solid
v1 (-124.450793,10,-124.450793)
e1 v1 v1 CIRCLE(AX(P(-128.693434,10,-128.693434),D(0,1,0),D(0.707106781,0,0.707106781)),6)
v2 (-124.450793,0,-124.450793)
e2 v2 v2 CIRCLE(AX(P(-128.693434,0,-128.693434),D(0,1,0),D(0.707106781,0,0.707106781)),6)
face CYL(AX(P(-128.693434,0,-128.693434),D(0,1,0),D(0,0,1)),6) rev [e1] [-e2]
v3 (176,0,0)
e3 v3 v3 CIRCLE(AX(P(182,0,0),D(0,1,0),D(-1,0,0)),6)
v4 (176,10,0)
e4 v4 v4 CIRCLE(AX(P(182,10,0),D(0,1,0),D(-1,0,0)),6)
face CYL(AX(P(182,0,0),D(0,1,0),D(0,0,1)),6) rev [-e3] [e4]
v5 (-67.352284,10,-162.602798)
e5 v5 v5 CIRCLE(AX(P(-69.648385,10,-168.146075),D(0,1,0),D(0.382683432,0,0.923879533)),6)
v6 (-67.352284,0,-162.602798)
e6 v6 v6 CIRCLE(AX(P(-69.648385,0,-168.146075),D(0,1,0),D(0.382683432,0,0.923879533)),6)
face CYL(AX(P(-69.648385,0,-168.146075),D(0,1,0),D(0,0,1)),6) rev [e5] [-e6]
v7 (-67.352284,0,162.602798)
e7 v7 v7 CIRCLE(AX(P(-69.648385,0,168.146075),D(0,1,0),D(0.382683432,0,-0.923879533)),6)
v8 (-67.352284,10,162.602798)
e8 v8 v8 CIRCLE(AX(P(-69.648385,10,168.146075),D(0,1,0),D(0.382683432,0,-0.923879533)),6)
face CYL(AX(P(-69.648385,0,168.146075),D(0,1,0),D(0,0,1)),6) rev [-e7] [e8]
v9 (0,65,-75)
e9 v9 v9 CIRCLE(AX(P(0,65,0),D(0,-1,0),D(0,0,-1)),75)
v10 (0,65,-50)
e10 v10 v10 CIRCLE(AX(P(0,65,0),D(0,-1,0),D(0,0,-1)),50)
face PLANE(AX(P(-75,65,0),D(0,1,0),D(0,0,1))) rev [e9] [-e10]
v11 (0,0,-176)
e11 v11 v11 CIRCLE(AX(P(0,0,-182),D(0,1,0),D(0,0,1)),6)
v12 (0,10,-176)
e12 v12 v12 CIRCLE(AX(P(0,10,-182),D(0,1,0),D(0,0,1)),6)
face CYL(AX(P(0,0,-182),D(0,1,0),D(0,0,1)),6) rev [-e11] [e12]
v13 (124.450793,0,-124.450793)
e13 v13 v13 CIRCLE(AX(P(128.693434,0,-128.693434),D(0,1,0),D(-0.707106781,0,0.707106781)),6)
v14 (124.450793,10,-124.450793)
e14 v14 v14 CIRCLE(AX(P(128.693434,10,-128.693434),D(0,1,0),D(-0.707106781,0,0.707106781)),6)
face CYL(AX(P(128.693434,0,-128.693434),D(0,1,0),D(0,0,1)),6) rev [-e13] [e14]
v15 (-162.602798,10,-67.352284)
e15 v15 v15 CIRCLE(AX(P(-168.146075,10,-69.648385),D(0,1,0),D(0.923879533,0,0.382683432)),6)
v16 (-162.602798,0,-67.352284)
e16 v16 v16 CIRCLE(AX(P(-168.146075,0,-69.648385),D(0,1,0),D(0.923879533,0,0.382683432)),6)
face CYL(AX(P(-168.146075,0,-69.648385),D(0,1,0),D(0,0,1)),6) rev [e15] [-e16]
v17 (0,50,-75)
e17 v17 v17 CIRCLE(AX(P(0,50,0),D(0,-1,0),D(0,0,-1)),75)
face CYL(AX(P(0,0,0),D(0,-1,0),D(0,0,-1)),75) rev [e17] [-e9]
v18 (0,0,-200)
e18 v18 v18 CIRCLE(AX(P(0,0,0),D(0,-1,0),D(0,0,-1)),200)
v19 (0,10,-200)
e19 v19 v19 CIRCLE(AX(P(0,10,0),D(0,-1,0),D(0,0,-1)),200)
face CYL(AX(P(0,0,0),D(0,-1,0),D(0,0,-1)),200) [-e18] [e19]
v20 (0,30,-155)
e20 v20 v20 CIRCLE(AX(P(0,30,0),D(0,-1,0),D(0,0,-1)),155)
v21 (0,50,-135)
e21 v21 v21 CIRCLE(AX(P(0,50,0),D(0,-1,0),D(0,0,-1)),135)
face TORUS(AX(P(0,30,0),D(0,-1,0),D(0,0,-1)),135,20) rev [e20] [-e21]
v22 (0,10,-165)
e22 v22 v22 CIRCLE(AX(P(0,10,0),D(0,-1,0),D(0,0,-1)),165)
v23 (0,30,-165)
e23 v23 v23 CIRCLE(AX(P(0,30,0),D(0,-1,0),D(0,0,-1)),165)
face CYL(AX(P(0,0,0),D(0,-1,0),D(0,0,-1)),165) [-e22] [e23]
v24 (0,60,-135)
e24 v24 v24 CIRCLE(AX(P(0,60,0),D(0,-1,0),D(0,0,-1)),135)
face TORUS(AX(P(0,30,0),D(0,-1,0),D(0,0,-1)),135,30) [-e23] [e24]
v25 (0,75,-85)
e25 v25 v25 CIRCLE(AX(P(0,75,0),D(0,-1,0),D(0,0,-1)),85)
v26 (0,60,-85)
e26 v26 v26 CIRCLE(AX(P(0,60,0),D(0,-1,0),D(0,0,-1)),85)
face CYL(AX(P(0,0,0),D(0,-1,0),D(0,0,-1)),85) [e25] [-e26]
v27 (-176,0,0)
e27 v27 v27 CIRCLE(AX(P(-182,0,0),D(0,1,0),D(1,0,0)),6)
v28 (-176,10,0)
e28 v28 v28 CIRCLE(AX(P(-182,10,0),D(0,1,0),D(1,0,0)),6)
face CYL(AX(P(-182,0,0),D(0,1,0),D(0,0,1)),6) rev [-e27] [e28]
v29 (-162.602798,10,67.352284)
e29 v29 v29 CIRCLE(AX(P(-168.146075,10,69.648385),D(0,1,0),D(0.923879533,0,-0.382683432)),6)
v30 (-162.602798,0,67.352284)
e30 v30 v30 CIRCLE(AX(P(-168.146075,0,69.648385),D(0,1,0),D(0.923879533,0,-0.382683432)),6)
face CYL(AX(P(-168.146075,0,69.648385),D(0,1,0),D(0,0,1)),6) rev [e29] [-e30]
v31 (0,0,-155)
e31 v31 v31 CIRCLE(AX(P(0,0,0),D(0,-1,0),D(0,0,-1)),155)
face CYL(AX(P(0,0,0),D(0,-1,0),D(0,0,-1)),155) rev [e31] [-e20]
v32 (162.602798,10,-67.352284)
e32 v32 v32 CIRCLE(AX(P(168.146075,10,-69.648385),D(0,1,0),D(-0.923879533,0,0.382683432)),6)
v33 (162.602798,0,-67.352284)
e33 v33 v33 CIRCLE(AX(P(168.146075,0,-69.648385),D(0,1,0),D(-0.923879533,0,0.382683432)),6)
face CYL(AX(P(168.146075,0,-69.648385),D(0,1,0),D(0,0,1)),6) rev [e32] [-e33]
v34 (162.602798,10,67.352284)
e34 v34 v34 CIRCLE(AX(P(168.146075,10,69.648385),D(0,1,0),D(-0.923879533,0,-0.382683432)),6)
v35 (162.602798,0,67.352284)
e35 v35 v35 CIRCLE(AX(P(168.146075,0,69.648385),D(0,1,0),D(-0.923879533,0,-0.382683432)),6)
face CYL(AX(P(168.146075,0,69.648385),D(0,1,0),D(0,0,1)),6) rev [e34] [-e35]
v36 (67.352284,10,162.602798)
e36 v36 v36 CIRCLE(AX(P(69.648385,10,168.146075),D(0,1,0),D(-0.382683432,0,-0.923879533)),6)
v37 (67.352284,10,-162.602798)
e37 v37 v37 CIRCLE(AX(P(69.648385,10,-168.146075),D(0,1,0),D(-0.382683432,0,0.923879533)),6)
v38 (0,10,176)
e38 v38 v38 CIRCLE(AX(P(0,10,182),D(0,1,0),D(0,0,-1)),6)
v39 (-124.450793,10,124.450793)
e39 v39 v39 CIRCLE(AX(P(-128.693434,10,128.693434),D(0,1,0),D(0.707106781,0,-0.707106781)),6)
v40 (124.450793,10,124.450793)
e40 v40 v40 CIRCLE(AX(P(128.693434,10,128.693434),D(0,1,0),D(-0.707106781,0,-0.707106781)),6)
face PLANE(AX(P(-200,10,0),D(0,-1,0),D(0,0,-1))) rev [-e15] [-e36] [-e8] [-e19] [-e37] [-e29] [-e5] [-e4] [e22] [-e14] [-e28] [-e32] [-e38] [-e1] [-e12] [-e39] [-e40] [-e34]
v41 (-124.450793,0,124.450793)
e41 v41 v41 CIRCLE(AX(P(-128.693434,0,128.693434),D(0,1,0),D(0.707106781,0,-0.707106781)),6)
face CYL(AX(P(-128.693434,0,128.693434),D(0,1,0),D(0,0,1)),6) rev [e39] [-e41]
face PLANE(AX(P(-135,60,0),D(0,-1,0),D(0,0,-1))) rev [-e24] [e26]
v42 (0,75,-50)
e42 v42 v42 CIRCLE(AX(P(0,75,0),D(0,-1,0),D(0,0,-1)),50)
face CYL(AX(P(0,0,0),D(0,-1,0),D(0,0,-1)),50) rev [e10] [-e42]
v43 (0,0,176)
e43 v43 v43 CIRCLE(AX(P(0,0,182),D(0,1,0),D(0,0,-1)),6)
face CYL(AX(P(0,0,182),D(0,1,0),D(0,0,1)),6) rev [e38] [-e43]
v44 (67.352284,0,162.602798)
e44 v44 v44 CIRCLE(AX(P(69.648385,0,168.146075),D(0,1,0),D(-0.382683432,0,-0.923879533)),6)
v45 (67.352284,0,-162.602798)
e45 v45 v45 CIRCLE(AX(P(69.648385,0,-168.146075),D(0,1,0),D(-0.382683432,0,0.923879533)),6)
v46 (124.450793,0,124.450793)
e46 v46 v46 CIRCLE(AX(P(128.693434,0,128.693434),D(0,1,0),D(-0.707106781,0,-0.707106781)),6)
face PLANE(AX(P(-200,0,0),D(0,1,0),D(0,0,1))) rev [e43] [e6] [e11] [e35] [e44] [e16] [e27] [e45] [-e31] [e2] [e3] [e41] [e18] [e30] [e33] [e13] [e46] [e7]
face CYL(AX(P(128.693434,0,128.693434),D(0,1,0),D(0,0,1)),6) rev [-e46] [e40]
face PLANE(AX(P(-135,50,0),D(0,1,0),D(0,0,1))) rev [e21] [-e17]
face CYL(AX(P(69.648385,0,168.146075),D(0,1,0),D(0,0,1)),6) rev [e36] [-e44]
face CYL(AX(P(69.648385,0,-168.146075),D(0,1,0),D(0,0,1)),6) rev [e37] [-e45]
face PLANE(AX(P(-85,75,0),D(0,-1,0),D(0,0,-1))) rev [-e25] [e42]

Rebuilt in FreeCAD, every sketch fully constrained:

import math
import FreeCAD as App
import Part
import Sketcher
from FreeCAD import Vector
Q = App.Units.Quantity

doc = App.newDocument("Part")
body = doc.addObject("PartDesign::Body", "Body")

sketch1 = doc.addObject("Sketcher::SketchObject", "Sketch")
body.addObject(sketch1)
sketch1.AttachmentSupport = (doc.XY_Plane, [""])
sketch1.MapMode = "FlatFace"
sketch1.addGeometry([
    Part.LineSegment(Vector(-165, 10, 0), Vector(-200, 10, 0)),
    Part.LineSegment(Vector(-200, 10, 0), Vector(-200, 0, 0)),
    Part.LineSegment(Vector(-200, 0, 0), Vector(-155, 0, 0)),
    Part.LineSegment(Vector(-155, 0, 0), Vector(-155, 30, 0)),
    Part.ArcOfCircle(Part.Circle(Vector(-135, 30, 0), Vector(0, 0, 1), 20), math.radians(90), math.radians(180)),
    Part.LineSegment(Vector(-135, 50, 0), Vector(-75, 50, 0)),
    Part.LineSegment(Vector(-75, 50, 0), Vector(-75, 65, 0)),
    Part.LineSegment(Vector(-75, 65, 0), Vector(-50, 65, 0)),
    Part.LineSegment(Vector(-50, 65, 0), Vector(-50, 75, 0)),
    Part.LineSegment(Vector(-50, 75, 0), Vector(-85, 75, 0)),
    Part.LineSegment(Vector(-85, 75, 0), Vector(-85, 60, 0)),
    Part.LineSegment(Vector(-85, 60, 0), Vector(-135, 60, 0)),
    Part.ArcOfCircle(Part.Circle(Vector(-135, 30, 0), Vector(0, 0, 1), 30), math.radians(90), math.radians(180)),
    Part.LineSegment(Vector(-165, 30, 0), Vector(-165, 10, 0)),
], False)
sketch1.addConstraint([
    Sketcher.Constraint("Coincident", 0, 2, 1, 1),
    Sketcher.Constraint("Coincident", 1, 2, 2, 1),
    Sketcher.Constraint("Coincident", 2, 2, 3, 1),
    Sketcher.Constraint("Tangent", 3, 2, 4, 2),
    Sketcher.Constraint("Tangent", 4, 1, 5, 1),
    Sketcher.Constraint("Coincident", 5, 2, 6, 1),
    Sketcher.Constraint("Coincident", 6, 2, 7, 1),
    Sketcher.Constraint("Coincident", 7, 2, 8, 1),
    Sketcher.Constraint("Coincident", 8, 2, 9, 1),
    Sketcher.Constraint("Coincident", 9, 2, 10, 1),
    Sketcher.Constraint("Coincident", 10, 2, 11, 1),
    Sketcher.Constraint("Tangent", 11, 2, 12, 1),
    Sketcher.Constraint("Tangent", 12, 2, 13, 1),
    Sketcher.Constraint("Coincident", 13, 2, 0, 1),
    Sketcher.Constraint("Horizontal", 0),
    Sketcher.Constraint("Vertical", 1),
    Sketcher.Constraint("Horizontal", 2),
    Sketcher.Constraint("Vertical", 3),
    Sketcher.Constraint("Horizontal", 5),
    Sketcher.Constraint("Vertical", 6),
    Sketcher.Constraint("Horizontal", 7),
    Sketcher.Constraint("Vertical", 8),
    Sketcher.Constraint("Horizontal", 9),
    Sketcher.Constraint("Vertical", 10),
    Sketcher.Constraint("Horizontal", 11),
    Sketcher.Constraint("Vertical", 13),
    Sketcher.Constraint("Coincident", 12, 3, 4, 3),
    Sketcher.Constraint("PointOnObject", 1, 2, -1),
    Sketcher.Constraint("Equal", 0, 9),
    Sketcher.Constraint("Equal", 1, 8),
    Sketcher.Constraint("Equal", 6, 10),
    Sketcher.Constraint("Radius", 4, Q("20 mm")),
    Sketcher.Constraint("Radius", 12, Q("30 mm")),
    Sketcher.Constraint("DistanceX", 0, 2, 0, 1, Q("35 mm")),
    Sketcher.Constraint("DistanceX", 5, 1, 5, 2, Q("60 mm")),
    Sketcher.Constraint("DistanceX", 7, 1, 7, 2, Q("25 mm")),
    Sketcher.Constraint("DistanceY", 3, 1, 3, 2, Q("30 mm")),
    Sketcher.Constraint("DistanceY", 6, 1, 6, 2, Q("15 mm")),
    Sketcher.Constraint("DistanceX", 4, 3, -1, 1, Q("135 mm")),
])
revolution = doc.addObject("PartDesign::Revolution", "Revolution")
body.addObject(revolution)
revolution.Profile = sketch1
revolution.ReferenceAxis = (sketch1, ["V_Axis"])
revolution.Angle = 360

sketch2 = doc.addObject("Sketcher::SketchObject", "Sketch001")
body.addObject(sketch2)
sketch2.AttachmentSupport = (doc.XZ_Plane, [""])
sketch2.MapMode = "FlatFace"
sketch2.AttachmentOffset = App.Placement(Vector(0, 0, -10), App.Rotation())
sketch2.addGeometry(Part.Circle(Vector(0, -182, 0), Vector(0, 0, 1), 6), False)
sketch2.addConstraint([
    Sketcher.Constraint("PointOnObject", 0, 3, -2),
    Sketcher.Constraint("Diameter", 0, Q("12 mm")),
    Sketcher.Constraint("DistanceY", 0, 3, -1, 1, Q("182 mm")),
])
pocket1 = doc.addObject("PartDesign::Pocket", "Pocket")
body.addObject(pocket1)
pocket1.Profile = sketch2
pocket1.Type = "ThroughAll"
pocket1.Reversed = True
doc.recompute()

polarpattern = doc.addObject("PartDesign::PolarPattern", "PolarPattern")
body.addObject(polarpattern)
polarpattern.Originals = [pocket1]
polarpattern.Axis = (doc.Y_Axis, [""])
polarpattern.Angle = 360
polarpattern.Occurrences = 16
body.Tip = polarpattern

doc.recompute()
